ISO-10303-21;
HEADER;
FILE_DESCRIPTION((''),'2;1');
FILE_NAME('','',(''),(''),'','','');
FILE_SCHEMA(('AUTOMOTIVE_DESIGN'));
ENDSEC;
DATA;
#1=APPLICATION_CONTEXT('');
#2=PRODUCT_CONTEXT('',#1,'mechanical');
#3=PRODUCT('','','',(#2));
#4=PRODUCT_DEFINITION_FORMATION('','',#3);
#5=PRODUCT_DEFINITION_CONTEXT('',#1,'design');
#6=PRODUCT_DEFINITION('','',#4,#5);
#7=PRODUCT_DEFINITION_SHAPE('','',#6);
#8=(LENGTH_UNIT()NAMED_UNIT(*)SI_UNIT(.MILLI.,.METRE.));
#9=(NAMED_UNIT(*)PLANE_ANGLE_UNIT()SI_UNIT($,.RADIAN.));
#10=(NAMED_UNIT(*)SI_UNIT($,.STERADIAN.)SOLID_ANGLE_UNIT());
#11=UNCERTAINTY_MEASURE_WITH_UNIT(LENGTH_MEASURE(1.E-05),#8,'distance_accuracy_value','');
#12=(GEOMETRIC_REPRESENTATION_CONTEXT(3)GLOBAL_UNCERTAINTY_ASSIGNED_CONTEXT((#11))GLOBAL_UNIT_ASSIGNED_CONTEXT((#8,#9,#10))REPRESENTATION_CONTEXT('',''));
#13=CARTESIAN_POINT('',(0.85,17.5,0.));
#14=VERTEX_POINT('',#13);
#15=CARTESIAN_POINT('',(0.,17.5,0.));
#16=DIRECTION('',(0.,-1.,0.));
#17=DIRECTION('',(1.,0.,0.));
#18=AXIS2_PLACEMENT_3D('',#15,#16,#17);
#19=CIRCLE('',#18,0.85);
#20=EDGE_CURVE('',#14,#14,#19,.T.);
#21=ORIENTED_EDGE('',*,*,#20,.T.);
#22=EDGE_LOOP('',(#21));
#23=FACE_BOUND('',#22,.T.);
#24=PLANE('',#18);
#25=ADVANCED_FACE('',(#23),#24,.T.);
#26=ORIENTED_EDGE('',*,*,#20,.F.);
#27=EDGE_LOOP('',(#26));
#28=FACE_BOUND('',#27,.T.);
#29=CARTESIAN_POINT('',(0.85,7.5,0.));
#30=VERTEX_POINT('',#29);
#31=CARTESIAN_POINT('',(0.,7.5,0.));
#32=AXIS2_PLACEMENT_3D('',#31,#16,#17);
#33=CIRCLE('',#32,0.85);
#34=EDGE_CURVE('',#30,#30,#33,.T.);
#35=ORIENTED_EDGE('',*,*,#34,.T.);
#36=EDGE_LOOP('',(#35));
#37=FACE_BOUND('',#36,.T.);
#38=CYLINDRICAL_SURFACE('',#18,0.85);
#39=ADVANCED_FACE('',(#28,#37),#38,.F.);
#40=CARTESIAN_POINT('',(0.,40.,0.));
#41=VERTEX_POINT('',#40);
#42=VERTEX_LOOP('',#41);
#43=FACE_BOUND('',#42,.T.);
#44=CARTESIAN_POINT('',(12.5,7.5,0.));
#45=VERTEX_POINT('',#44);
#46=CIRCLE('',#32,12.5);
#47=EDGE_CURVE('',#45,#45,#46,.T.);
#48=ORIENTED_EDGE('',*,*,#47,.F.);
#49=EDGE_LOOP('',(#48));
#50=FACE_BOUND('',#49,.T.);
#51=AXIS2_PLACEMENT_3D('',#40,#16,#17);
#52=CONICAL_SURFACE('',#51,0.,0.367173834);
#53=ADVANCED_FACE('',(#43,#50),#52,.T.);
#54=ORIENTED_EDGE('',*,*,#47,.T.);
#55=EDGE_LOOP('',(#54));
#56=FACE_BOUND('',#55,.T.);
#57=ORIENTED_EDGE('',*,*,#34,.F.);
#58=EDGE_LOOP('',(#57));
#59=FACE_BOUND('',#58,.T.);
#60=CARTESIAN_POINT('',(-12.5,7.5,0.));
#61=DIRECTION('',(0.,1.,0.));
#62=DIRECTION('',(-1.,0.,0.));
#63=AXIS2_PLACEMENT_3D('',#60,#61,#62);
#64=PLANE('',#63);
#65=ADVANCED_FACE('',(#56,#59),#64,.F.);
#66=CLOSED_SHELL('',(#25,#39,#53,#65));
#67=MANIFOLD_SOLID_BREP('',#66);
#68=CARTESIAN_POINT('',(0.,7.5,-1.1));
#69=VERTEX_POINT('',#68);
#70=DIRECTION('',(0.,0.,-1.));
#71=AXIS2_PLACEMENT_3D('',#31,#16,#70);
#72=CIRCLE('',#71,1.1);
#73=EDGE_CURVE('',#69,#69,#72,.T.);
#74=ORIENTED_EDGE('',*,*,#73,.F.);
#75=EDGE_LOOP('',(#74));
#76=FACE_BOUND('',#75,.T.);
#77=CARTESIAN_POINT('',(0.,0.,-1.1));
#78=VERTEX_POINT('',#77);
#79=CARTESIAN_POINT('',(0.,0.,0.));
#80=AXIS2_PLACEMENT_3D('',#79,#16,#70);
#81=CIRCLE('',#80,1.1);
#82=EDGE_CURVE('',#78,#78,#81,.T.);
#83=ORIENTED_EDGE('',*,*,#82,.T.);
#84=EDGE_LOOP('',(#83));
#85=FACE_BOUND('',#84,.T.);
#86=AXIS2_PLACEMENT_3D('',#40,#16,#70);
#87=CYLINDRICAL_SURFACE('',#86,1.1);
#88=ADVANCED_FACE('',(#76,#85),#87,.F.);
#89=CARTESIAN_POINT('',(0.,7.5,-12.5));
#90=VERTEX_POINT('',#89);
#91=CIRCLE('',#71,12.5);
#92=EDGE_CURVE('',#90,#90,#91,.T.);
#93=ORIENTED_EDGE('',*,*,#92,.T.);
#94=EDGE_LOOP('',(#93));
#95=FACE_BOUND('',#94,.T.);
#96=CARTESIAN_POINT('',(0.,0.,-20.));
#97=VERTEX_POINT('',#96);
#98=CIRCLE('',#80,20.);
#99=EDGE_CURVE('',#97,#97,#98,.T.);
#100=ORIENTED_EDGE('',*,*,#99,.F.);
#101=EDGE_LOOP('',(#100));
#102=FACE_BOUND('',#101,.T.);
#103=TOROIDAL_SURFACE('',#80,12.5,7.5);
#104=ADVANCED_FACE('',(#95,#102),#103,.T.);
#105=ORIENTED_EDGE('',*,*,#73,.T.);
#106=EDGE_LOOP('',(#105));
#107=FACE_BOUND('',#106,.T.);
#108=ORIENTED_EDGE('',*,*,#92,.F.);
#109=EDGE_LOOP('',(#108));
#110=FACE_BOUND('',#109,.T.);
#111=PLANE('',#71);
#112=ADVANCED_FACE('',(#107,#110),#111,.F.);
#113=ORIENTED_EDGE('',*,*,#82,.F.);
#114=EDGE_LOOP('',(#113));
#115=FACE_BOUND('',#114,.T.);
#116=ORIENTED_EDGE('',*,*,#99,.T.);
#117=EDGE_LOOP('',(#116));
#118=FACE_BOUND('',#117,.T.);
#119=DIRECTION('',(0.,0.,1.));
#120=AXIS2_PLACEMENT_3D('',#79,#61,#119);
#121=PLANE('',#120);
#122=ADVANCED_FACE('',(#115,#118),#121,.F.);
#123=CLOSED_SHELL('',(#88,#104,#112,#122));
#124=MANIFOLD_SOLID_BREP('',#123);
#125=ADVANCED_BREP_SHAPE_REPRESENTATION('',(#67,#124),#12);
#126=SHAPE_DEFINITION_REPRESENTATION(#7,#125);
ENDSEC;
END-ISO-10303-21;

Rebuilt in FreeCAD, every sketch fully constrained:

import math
import FreeCAD as App
import Part
import Sketcher
Q = App.Units.Quantity

doc = App.newDocument("Part")
body = doc.addObject("PartDesign::Body", "Body")

sketch1 = body.newObject("Sketcher::SketchObject", "Sketch")
sketch1.AttachmentSupport = (doc.getObject("XY_Plane"), [""])
sketch1.MapMode = "FlatFace"
sketch1.addGeometry([
    Part.LineSegment(App.Vector(0, 0, 0), App.Vector(0, 8, 0)),
    Part.LineSegment(App.Vector(0, 8, 0), App.Vector(-12, 8, 0)),
    Part.ArcOfCircle(Part.Circle(App.Vector(-12, 0, 0), App.Vector(0, 0, 1), 8), math.radians(90), math.radians(180)),
    Part.LineSegment(App.Vector(-20, 0, 0), App.Vector(0, 0, 0)),
], False)
sketch1.addConstraint([
    Sketcher.Constraint("Coincident", 0, 2, 1, 1),
    Sketcher.Constraint("Tangent", 1, 2, 2, 1),
    Sketcher.Constraint("Coincident", 2, 2, 3, 1),
    Sketcher.Constraint("Coincident", 3, 2, 0, 1),
    Sketcher.Constraint("Vertical", 0),
    Sketcher.Constraint("Horizontal", 1),
    Sketcher.Constraint("Horizontal", 3),
    Sketcher.Constraint("Coincident", 3, 2, -1, 1),
    Sketcher.Constraint("PointOnObject", 2, 3, -1),
    Sketcher.Constraint("Radius", 2, Q("7.5 mm")),
    Sketcher.Constraint("DistanceX", 3, 1, 3, 2, Q("20 mm")),
])
revolution = body.newObject("PartDesign::Revolution", "Revolution")
revolution.Profile = sketch1
revolution.ReferenceAxis = (sketch1, ["V_Axis"])
revolution.Angle = 360

sketch2 = body.newObject("Sketcher::SketchObject", "Sketch001")
sketch2.AttachmentSupport = (doc.getObject("XZ_Plane"), [""])
sketch2.MapMode = "FlatFace"
sketch2.addGeometry(Part.Circle(App.Vector(0, 0, 0), App.Vector(0, 0, 1), 1.1), False)
sketch2.addConstraint([
    Sketcher.Constraint("Coincident", 0, 3, -1, 1),
    Sketcher.Constraint("Diameter", 0, Q("2.2 mm")),
])
pocket1 = body.newObject("PartDesign::Pocket", "Pocket")
pocket1.Profile = sketch2
pocket1.Type = "ThroughAll"
body2 = doc.addObject("PartDesign::Body", "Body001")

sketch3 = body2.newObject("Sketcher::SketchObject", "Sketch002")
sketch3.AttachmentSupport = (doc.getObject("XY_Plane001"), [""])
sketch3.MapMode = "FlatFace"
sketch3.addGeometry([
    Part.LineSegment(App.Vector(0, 8, 0), App.Vector(0, 40, 0)),
    Part.LineSegment(App.Vector(0, 40, 0), App.Vector(-12, 8, 0)),
    Part.LineSegment(App.Vector(-12, 8, 0), App.Vector(0, 8, 0)),
], False)
sketch3.addConstraint([
    Sketcher.Constraint("Coincident", 0, 2, 1, 1),
    Sketcher.Constraint("Coincident", 1, 2, 2, 1),
    Sketcher.Constraint("Coincident", 2, 2, 0, 1),
    Sketcher.Constraint("Vertical", 0),
    Sketcher.Constraint("Horizontal", 2),
    Sketcher.Constraint("PointOnObject", 0, 2, -2),
    Sketcher.Constraint("DistanceX", 2, 1, 2, 2, Q("12.5 mm")),
    Sketcher.Constraint("DistanceY", 0, 1, 0, 2, Q("32.5 mm")),
    Sketcher.Constraint("DistanceY", -1, 1, 0, 2, Q("40 mm")),
])
revolution2 = body2.newObject("PartDesign::Revolution", "Revolution001")
revolution2.Profile = sketch3
revolution2.ReferenceAxis = (sketch3, ["V_Axis"])
revolution2.Angle = 360

sketch4 = body2.newObject("Sketcher::SketchObject", "Sketch003")
sketch4.AttachmentSupport = (doc.getObject("XZ_Plane001"), [""])
sketch4.MapMode = "FlatFace"
sketch4.AttachmentOffset = App.Placement(App.Vector(0, 0, -7.5), App.Rotation())
sketch4.addGeometry(Part.Circle(App.Vector(0, 0, 0), App.Vector(0, 0, 1), 0.8), False)
sketch4.addConstraint([
    Sketcher.Constraint("Coincident", 0, 3, -1, 1),
    Sketcher.Constraint("Diameter", 0, Q("1.7 mm")),
])
pocket2 = body2.newObject("PartDesign::Pocket", "Pocket001")
pocket2.Profile = sketch4
pocket2.Length = 10

doc.recompute()
